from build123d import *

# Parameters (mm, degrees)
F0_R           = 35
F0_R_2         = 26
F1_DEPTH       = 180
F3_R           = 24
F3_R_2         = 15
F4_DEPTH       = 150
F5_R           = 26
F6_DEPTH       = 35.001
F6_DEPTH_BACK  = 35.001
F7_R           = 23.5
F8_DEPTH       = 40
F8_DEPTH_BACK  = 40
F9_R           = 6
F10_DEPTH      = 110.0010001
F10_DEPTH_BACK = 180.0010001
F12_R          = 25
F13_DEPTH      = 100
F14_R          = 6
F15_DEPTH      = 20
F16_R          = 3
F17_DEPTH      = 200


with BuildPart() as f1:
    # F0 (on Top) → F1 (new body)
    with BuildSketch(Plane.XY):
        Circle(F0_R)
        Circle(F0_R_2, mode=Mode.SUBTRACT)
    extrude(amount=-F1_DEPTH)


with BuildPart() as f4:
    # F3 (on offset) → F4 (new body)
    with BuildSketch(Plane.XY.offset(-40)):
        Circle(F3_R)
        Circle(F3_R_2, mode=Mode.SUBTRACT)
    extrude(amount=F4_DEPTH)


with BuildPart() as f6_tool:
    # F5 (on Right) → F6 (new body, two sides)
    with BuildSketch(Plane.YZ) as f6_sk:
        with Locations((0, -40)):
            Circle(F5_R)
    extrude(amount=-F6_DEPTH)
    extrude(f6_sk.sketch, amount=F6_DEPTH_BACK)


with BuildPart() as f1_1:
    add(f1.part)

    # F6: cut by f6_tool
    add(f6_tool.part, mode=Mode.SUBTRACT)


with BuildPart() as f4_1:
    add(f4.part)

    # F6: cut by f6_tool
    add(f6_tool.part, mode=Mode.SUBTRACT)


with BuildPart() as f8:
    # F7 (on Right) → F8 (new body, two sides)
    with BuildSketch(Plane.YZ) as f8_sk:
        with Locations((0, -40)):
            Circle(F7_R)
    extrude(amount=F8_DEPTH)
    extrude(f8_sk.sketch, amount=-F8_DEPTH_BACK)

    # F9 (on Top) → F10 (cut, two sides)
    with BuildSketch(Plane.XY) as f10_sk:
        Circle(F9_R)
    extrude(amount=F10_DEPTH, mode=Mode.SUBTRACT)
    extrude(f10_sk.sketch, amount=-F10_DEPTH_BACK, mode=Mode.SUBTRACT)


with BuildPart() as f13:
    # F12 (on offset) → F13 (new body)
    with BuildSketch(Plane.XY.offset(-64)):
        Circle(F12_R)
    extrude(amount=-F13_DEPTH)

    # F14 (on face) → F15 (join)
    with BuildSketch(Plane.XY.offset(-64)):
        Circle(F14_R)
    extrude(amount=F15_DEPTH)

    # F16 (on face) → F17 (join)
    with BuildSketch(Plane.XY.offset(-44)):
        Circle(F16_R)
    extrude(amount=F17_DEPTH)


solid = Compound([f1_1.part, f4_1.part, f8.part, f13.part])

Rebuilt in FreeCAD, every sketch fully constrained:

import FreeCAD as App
import Part
import Sketcher

doc = App.newDocument("Part")
body = doc.addObject("PartDesign::Body", "Body")

# Sketch on XY plane
sketch1 = body.newObject("Sketcher::SketchObject", "Sketch")
sketch1.AttachmentSupport = (doc.getObject("XY_Plane"), [""])
sketch1.MapMode = "FlatFace"
sketch1.addGeometry([
    Part.Circle(App.Vector(0, 0, 0), App.Vector(0, 0, 1), 35),
    Part.Circle(App.Vector(0, 0, 0), App.Vector(0, 0, 1), 26),
], False)
sketch1.addConstraint([
    Sketcher.Constraint("Coincident", 0, 3, -1, 1),
    Sketcher.Constraint("Coincident", 1, 3, -1, 1),
    Sketcher.Constraint("Diameter", 0, 70.0),
    Sketcher.Constraint("Diameter", 1, 52.0),
])
pad1 = body.newObject("PartDesign::Pad", "Pad")
pad1.Profile = sketch1
pad1.Length = 180
pad1.Reversed = True
body2 = doc.addObject("PartDesign::Body", "Body001")

# Sketch on XY plane
sketch2 = body2.newObject("Sketcher::SketchObject", "Sketch001")
sketch2.AttachmentSupport = (doc.getObject("XY_Plane001"), [""])
sketch2.MapMode = "FlatFace"
sketch2.AttachmentOffset = App.Placement(App.Vector(0, 0, -40), App.Rotation())
sketch2.addGeometry([
    Part.Circle(App.Vector(0, 0, 0), App.Vector(0, 0, 1), 24),
    Part.Circle(App.Vector(0, 0, 0), App.Vector(0, 0, 1), 15),
], False)
sketch2.addConstraint([
    Sketcher.Constraint("Coincident", 0, 3, -1, 1),
    Sketcher.Constraint("Coincident", 1, 3, -1, 1),
    Sketcher.Constraint("Diameter", 0, 48.0),
    Sketcher.Constraint("Diameter", 1, 30.0),
])
pad2 = body2.newObject("PartDesign::Pad", "Pad001")
pad2.Profile = sketch2
pad2.Length = 150
body3 = doc.addObject("PartDesign::Body", "Body002")

# Sketch on YZ plane
sketch3 = body3.newObject("Sketcher::SketchObject", "Sketch002")
sketch3.AttachmentSupport = (doc.getObject("YZ_Plane002"), [""])
sketch3.MapMode = "FlatFace"
sketch3.addGeometry(Part.Circle(App.Vector(0, -40, 0), App.Vector(0, 0, 1), 26), False)
sketch3.addConstraint([
    Sketcher.Constraint("PointOnObject", 0, 3, -2),
    Sketcher.Constraint("Diameter", 0, 52.0),
    Sketcher.Constraint("DistanceY", 0, 3, -1, 1, 40.0),
])
pad3 = body3.newObject("PartDesign::Pad", "Pad002")
pad3.Profile = sketch3
pad3.Type = "TwoLengths"
pad3.Length = 35.001
pad3.Length2 = 35.001
pad3.Reversed = True
doc.recompute()

body4 = doc.addObject("PartDesign::Body", "Body003")
body4.BaseFeature = body3
boolean = body.newObject("PartDesign::Boolean", "Boolean")
boolean.Type = "Cut"
boolean.addObjects([body4])
doc.recompute()

boolean2 = body2.newObject("PartDesign::Boolean", "Boolean001")
boolean2.Type = "Cut"
boolean2.addObjects([body3])
body5 = doc.addObject("PartDesign::Body", "Body004")

# Sketch on YZ plane
sketch4 = body5.newObject("Sketcher::SketchObject", "Sketch003")
sketch4.AttachmentSupport = (doc.getObject("YZ_Plane004"), [""])
sketch4.MapMode = "FlatFace"
sketch4.addGeometry(Part.Circle(App.Vector(0, -40, 0), App.Vector(0, 0, 1), 24), False)
sketch4.addConstraint([
    Sketcher.Constraint("PointOnObject", 0, 3, -2),
    Sketcher.Constraint("Diameter", 0, 47.0),
    Sketcher.Constraint("DistanceY", 0, 3, -1, 1, 40.0),
])
pad4 = body5.newObject("PartDesign::Pad", "Pad003")
pad4.Profile = sketch4
pad4.Type = "TwoLengths"
pad4.Length = 40
pad4.Length2 = 40

# Sketch on XY plane
sketch5 = body5.newObject("Sketcher::SketchObject", "Sketch004")
sketch5.AttachmentSupport = (doc.getObject("XY_Plane004"), [""])
sketch5.MapMode = "FlatFace"
sketch5.addGeometry(Part.Circle(App.Vector(0, 0, 0), App.Vector(0, 0, 1), 6), False)
sketch5.addConstraint([
    Sketcher.Constraint("Coincident", 0, 3, -1, 1),
    Sketcher.Constraint("Diameter", 0, 12.0),
])
pocket1 = body5.newObject("PartDesign::Pocket", "Pocket")
pocket1.Profile = sketch5
pocket1.Type = "ThroughAll"
pocket1.Midplane = True
body6 = doc.addObject("PartDesign::Body", "Body005")

# Sketch on XY plane
sketch6 = body6.newObject("Sketcher::SketchObject", "Sketch005")
sketch6.AttachmentSupport = (doc.getObject("XY_Plane005"), [""])
sketch6.MapMode = "FlatFace"
sketch6.AttachmentOffset = App.Placement(App.Vector(0, 0, -64), App.Rotation())
sketch6.addGeometry(Part.Circle(App.Vector(0, 0, 0), App.Vector(0, 0, 1), 25), False)
sketch6.addConstraint([
    Sketcher.Constraint("Coincident", 0, 3, -1, 1),
    Sketcher.Constraint("Diameter", 0, 50.0),
])
pad5 = body6.newObject("PartDesign::Pad", "Pad004")
pad5.Profile = sketch6
pad5.Length = 100
pad5.Reversed = True

# Sketch on XY plane
sketch7 = body6.newObject("Sketcher::SketchObject", "Sketch006")
sketch7.AttachmentSupport = (doc.getObject("XY_Plane005"), [""])
sketch7.MapMode = "FlatFace"
sketch7.AttachmentOffset = App.Placement(App.Vector(0, 0, -64), App.Rotation())
sketch7.addGeometry(Part.Circle(App.Vector(0, 0, 0), App.Vector(0, 0, 1), 6), False)
sketch7.addConstraint([
    Sketcher.Constraint("Coincident", 0, 3, -1, 1),
    Sketcher.Constraint("Diameter", 0, 12.0),
])
pad6 = body6.newObject("PartDesign::Pad", "Pad005")
pad6.Profile = sketch7
pad6.Length = 20

# Sketch on XY plane
sketch8 = body6.newObject("Sketcher::SketchObject", "Sketch007")
sketch8.AttachmentSupport = (doc.getObject("XY_Plane005"), [""])
sketch8.MapMode = "FlatFace"
sketch8.AttachmentOffset = App.Placement(App.Vector(0, 0, -44), App.Rotation())
sketch8.addGeometry(Part.Circle(App.Vector(0, 0, 0), App.Vector(0, 0, 1), 3), False)
sketch8.addConstraint([
    Sketcher.Constraint("Coincident", 0, 3, -1, 1),
    Sketcher.Constraint("Diameter", 0, 6.0),
])
pad7 = body6.newObject("PartDesign::Pad", "Pad006")
pad7.Profile = sketch8
pad7.Length = 200

doc.recompute()
